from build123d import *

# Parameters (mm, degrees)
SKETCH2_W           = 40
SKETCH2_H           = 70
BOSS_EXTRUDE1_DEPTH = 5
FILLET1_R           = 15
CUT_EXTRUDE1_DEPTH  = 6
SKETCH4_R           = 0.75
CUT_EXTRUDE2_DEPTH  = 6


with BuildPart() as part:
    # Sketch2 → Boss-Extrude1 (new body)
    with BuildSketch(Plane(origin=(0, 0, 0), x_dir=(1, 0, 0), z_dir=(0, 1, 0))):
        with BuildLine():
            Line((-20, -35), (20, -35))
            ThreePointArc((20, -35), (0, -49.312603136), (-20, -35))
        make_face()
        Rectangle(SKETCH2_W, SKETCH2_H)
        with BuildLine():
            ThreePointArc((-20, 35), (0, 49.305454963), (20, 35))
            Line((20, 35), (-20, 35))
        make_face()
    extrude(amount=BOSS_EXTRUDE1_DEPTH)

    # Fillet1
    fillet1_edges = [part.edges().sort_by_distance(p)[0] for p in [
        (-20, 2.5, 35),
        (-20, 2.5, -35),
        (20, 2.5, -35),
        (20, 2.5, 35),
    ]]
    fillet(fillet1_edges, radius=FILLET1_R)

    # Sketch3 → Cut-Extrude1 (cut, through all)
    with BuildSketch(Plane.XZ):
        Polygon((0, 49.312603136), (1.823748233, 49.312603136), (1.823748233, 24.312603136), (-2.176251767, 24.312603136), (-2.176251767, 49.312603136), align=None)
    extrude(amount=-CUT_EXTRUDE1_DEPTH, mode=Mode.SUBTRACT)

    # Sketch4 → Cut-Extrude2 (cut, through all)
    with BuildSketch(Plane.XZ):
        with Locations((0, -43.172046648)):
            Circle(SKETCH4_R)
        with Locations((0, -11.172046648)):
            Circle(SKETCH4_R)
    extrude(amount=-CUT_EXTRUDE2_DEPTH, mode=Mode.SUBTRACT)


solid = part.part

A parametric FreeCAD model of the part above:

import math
import FreeCAD as App
import Part
import Sketcher


def edges_at(feature, points):
    """Names of the edges that pass closest to the given points."""
    edges = feature.Shape.Edges
    near = lambda p: min(range(len(edges)), key=lambda i: edges[i].distToShape(Part.Vertex(*p))[0])
    return sorted({f"Edge{near(p) + 1}" for p in points})

doc = App.newDocument("Part")
body = doc.addObject("PartDesign::Body", "Body")

sketch1 = body.newObject("Sketcher::SketchObject", "Sketch")
sketch1.AttachmentSupport = (doc.getObject("XZ_Plane"), [""])
sketch1.MapMode = "FlatFace"
sketch1.addGeometry([
    Part.ArcOfCircle(Part.Circle(App.Vector(0, 28, 0), App.Vector(0, 0, 1), 21), math.radians(19), math.radians(161)),
    Part.LineSegment(App.Vector(20, 35, 0), App.Vector(20, -35, 0)),
    Part.ArcOfCircle(Part.Circle(App.Vector(0, -28, 0), App.Vector(0, 0, 1), 21), math.radians(-161), math.radians(-19)),
    Part.LineSegment(App.Vector(-20, -35, 0), App.Vector(-20, 35, 0)),
], False)
sketch1.addConstraint([
    Sketcher.Constraint("Coincident", 0, 1, 1, 1),
    Sketcher.Constraint("Coincident", 1, 2, 2, 2),
    Sketcher.Constraint("Coincident", 2, 1, 3, 1),
    Sketcher.Constraint("Coincident", 3, 2, 0, 2),
    Sketcher.Constraint("Vertical", 1),
    Sketcher.Constraint("Vertical", 3),
    Sketcher.Constraint("Symmetric", 0, 1, 2, 1, -1, 1),
    Sketcher.Constraint("PointOnObject", 0, 3, -2),
    Sketcher.Constraint("PointOnObject", 2, 3, -2),
    Sketcher.Constraint("DistanceY", 1, 2, 1, 1, 70.0),
    Sketcher.Constraint("Radius", 0, 21.13),
    Sketcher.Constraint("DistanceX", -1, 1, 0, 1, 20.0),
    Sketcher.Constraint("Radius", 2, 21.133408),
])
pad1 = body.newObject("PartDesign::Pad", "Pad")
pad1.Profile = sketch1
pad1.Length = 5
pad1.Reversed = True
doc.recompute()

fillet = body.newObject("PartDesign::Fillet", "Fillet")
fillet.Base = (pad1, edges_at(pad1, [
    (-20, 2.5, 35),
    (-20, 2.5, -35),
    (20, 2.5, -35),
    (20, 2.5, 35),
]))
fillet.Radius = 15

sketch2 = body.newObject("Sketcher::SketchObject", "Sketch001")
sketch2.AttachmentSupport = (doc.getObject("XZ_Plane"), [""])
sketch2.MapMode = "FlatFace"
sketch2.addGeometry([
    Part.LineSegment(App.Vector(1.8, 49.3, 0), App.Vector(-2.2, 49.3, 0)),
    Part.LineSegment(App.Vector(-2.2, 49.3, 0), App.Vector(-2.2, 24.3, 0)),
    Part.LineSegment(App.Vector(-2.2, 24.3, 0), App.Vector(1.8, 24.3, 0)),
    Part.LineSegment(App.Vector(1.8, 24.3, 0), App.Vector(1.8, 49.3, 0)),
], False)
sketch2.addConstraint([
    Sketcher.Constraint("Coincident", 0, 2, 1, 1),
    Sketcher.Constraint("Coincident", 1, 2, 2, 1),
    Sketcher.Constraint("Coincident", 2, 2, 3, 1),
    Sketcher.Constraint("Coincident", 3, 2, 0, 1),
    Sketcher.Constraint("Horizontal", 0),
    Sketcher.Constraint("Vertical", 1),
    Sketcher.Constraint("Horizontal", 2),
    Sketcher.Constraint("Vertical", 3),
    Sketcher.Constraint("DistanceX", 0, 2, 0, 1, 4.0),
    Sketcher.Constraint("DistanceY", 1, 2, 1, 1, 25.0),
    Sketcher.Constraint("DistanceX", 0, 2, -1, 1, 2.176252),
    Sketcher.Constraint("DistanceY", -1, 1, 0, 2, 49.312603),
])
pocket1 = body.newObject("PartDesign::Pocket", "Pocket")
pocket1.Profile = sketch2
pocket1.Type = "ThroughAll"

sketch3 = body.newObject("Sketcher::SketchObject", "Sketch002")
sketch3.AttachmentSupport = (doc.getObject("XZ_Plane"), [""])
sketch3.MapMode = "FlatFace"
sketch3.addGeometry([
    Part.Circle(App.Vector(0, -43.2, 0), App.Vector(0, 0, 1), 0.8),
    Part.Circle(App.Vector(0, -11.2, 0), App.Vector(0, 0, 1), 0.8),
], False)
sketch3.addConstraint([
    Sketcher.Constraint("Equal", 0, 1),
    Sketcher.Constraint("PointOnObject", 0, 3, -2),
    Sketcher.Constraint("PointOnObject", 1, 3, -2),
    Sketcher.Constraint("Diameter", 0, 1.5),
    Sketcher.Constraint("DistanceY", 0, 3, 1, 3, 32.0),
    Sketcher.Constraint("DistanceY", 0, 3, -1, 1, 43.172047),
])
pocket2 = body.newObject("PartDesign::Pocket", "Pocket001")
pocket2.Profile = sketch3
pocket2.Type = "ThroughAll"

doc.recompute()
